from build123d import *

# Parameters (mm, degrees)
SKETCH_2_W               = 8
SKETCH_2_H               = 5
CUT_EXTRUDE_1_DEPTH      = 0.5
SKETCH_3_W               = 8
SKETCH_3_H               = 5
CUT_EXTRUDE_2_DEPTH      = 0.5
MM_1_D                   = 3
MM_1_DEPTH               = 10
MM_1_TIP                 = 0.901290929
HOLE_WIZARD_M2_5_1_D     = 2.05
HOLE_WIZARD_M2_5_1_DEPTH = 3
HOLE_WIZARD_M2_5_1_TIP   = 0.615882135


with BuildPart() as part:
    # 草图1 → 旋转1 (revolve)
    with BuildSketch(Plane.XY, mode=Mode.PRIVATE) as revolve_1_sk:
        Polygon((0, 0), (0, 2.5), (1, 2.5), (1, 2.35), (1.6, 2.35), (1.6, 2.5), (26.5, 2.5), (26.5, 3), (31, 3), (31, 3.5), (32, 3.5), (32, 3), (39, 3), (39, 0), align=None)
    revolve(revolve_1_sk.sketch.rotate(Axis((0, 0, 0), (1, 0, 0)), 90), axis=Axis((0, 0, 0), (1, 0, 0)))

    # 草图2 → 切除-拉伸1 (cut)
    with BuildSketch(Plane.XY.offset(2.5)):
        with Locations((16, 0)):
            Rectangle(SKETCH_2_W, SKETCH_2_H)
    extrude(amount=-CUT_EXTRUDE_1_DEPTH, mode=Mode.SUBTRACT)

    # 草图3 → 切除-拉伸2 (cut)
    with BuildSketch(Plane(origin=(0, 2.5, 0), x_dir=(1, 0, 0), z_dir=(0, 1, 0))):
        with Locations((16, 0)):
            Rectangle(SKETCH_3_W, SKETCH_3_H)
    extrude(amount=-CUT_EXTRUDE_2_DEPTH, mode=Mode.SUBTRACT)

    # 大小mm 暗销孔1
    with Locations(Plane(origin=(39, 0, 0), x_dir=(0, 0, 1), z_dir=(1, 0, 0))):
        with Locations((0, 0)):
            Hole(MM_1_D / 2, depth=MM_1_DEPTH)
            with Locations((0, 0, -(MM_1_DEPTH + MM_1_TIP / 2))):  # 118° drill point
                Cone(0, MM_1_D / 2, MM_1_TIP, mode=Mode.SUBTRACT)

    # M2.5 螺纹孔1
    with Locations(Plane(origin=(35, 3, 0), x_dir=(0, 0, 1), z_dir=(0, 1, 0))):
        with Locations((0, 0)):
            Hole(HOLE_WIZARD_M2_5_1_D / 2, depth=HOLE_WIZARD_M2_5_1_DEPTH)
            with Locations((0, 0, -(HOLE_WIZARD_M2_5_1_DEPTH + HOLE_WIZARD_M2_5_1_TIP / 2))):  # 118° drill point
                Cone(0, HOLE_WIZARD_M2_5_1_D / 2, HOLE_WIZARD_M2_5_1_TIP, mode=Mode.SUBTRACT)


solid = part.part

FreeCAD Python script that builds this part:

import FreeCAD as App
import Part
import Sketcher
from FreeCAD import Vector


def add_polygon(sketch, points):
    """Adds a closed chain of lines whose ends are joined by coincident constraints."""
    first, n = sketch.GeometryCount, len(points)
    for a, b in zip(points, points[1:] + points[:1]):
        sketch.addGeometry(Part.LineSegment(App.Vector(*a, 0), App.Vector(*b, 0)), False)
    for i in range(n):
        sketch.addConstraint(Sketcher.Constraint("Coincident", first + i, 2, first + (i + 1) % n, 1))

doc = App.newDocument("Part")
params = doc.addObject("Spreadsheet::Sheet", "Params")
for row, (alias, value) in enumerate([
    ("sketch1_width", "39 mm"),
    ("sketch1_width2", "7 mm"),
    ("sketch1_width3", "1 mm"),
    ("sketch1_height", "3 mm"),
    ("sketch1_width4", "4.5 mm"),
    ("revolution_angle", "360 deg"),
    ("sketch2_width", "8 mm"),
    ("sketch2_height", "5 mm"),
    ("pocket1_length", "0.5 mm"),
    ("sketch3_width", "8 mm"),
    ("sketch3_height", "5 mm"),
    ("pocket2_length", "0.5 mm"),
    ("sketch4_diameter", "3 mm"),
    ("hole_diameter", "3 mm"),
    ("hole_depth", "10 mm"),
    ("sketch5_diameter", "2.05 mm"),
    ("hole2_diameter", "2.05 mm"),
    ("hole2_depth", "3 mm"),
], start=1):
    params.set(f"A{row}", alias)
    params.set(f"B{row}", "=" + value)
    params.setAlias(f"B{row}", alias)

body = doc.addObject("PartDesign::Body", "Body")

# Sketch on XY plane
sketch1 = body.newObject("Sketcher::SketchObject", "Sketch")
sketch1.AttachmentSupport = (doc.getObject("XY_Plane"), [""])
sketch1.MapMode = "FlatFace"
add_polygon(sketch1, [(0, 2.5), (0, 0), (39, 0), (39, 3), (32, 3), (32, 3.5), (31, 3.5), (31, 3), (26.5, 3), (26.5, 2.5), (1.6, 2.5), (1.6, 2.35), (1, 2.35), (1, 2.5)])  # lines 0-13
sketch1.addConstraint(Sketcher.Constraint("Vertical", 0))
sketch1.addConstraint(Sketcher.Constraint("Horizontal", 1))
sketch1.addConstraint(Sketcher.Constraint("Vertical", 2))
sketch1.addConstraint(Sketcher.Constraint("Horizontal", 3))
sketch1.addConstraint(Sketcher.Constraint("Vertical", 4))
sketch1.addConstraint(Sketcher.Constraint("Horizontal", 5))
sketch1.addConstraint(Sketcher.Constraint("Vertical", 6))
sketch1.addConstraint(Sketcher.Constraint("Horizontal", 7))
sketch1.addConstraint(Sketcher.Constraint("Vertical", 8))
sketch1.addConstraint(Sketcher.Constraint("Horizontal", 9))
sketch1.addConstraint(Sketcher.Constraint("Vertical", 10))
sketch1.addConstraint(Sketcher.Constraint("Horizontal", 11))
sketch1.addConstraint(Sketcher.Constraint("Vertical", 12))
sketch1.addConstraint(Sketcher.Constraint("Horizontal", 13))
sketch1.addConstraint(Sketcher.Constraint("Coincident", 0, 2, -1, 1))
sketch1.addConstraint(Sketcher.Constraint("Horizontal", 3, 2, 6, 2))
sketch1.addConstraint(Sketcher.Constraint("Horizontal", 9, 2, 12, 2))
sketch1.addConstraint(Sketcher.Constraint("Equal", 5, 13))
sketch1.addConstraint(Sketcher.Constraint("Equal", 6, 8))
sketch1.addConstraint(Sketcher.Constraint("DistanceX", 1, 1, 1, 2, 39.0))
sketch1.addConstraint(Sketcher.Constraint("DistanceX", 3, 2, 3, 1, 7.0))
sketch1.addConstraint(Sketcher.Constraint("DistanceX", 5, 2, 5, 1, 1.0))
sketch1.addConstraint(Sketcher.Constraint("DistanceY", 2, 1, 2, 2, 3.0))
sketch1.addConstraint(Sketcher.Constraint("DistanceX", 7, 2, 7, 1, 4.5))
sketch1.addConstraint(Sketcher.Constraint("DistanceX", 9, 2, 9, 1, 24.9))
sketch1.addConstraint(Sketcher.Constraint("DistanceY", 0, 2, 0, 1, 2.5))
sketch1.addConstraint(Sketcher.Constraint("DistanceY", 10, 2, 10, 1, 0.15))
sketch1.setExpression("Constraints[33]", "Params.sketch1_width")
sketch1.setExpression("Constraints[34]", "Params.sketch1_width2")
sketch1.setExpression("Constraints[35]", "Params.sketch1_width3")
sketch1.setExpression("Constraints[36]", "Params.sketch1_height")
sketch1.setExpression("Constraints[37]", "Params.sketch1_width4")
revolution = body.newObject("PartDesign::Revolution", "Revolution")
revolution.Profile = sketch1
revolution.ReferenceAxis = (sketch1, ["H_Axis"])
revolution.setExpression("Angle", "Params.revolution_angle")

# Sketch on XY plane
sketch2 = body.newObject("Sketcher::SketchObject", "Sketch001")
sketch2.AttachmentSupport = (doc.getObject("XY_Plane"), [""])
sketch2.MapMode = "FlatFace"
sketch2.AttachmentOffset = App.Placement(Vector(0, 0, 2.5), App.Rotation())
add_polygon(sketch2, [(12, 2), (12, -2), (20, -2), (20, 2)])  # lines 0-3
sketch2.addConstraint(Sketcher.Constraint("Vertical", 0))
sketch2.addConstraint(Sketcher.Constraint("Horizontal", 1))
sketch2.addConstraint(Sketcher.Constraint("Vertical", 2))
sketch2.addConstraint(Sketcher.Constraint("Horizontal", 3))
sketch2.addConstraint(Sketcher.Constraint("DistanceX", 1, 1, 1, 2, 8.0))
sketch2.addConstraint(Sketcher.Constraint("DistanceY", 0, 2, 0, 1, 5.0))
sketch2.addConstraint(Sketcher.Constraint("DistanceX", -1, 1, 0, 2, 12.0))
sketch2.addConstraint(Sketcher.Constraint("DistanceY", 0, 2, -1, 1, 2.5))
sketch2.setExpression("Constraints[8]", "Params.sketch2_width")
sketch2.setExpression("Constraints[9]", "Params.sketch2_height")
pocket1 = body.newObject("PartDesign::Pocket", "Pocket")
pocket1.Profile = sketch2
pocket1.setExpression("Length", "Params.pocket1_length")

# Sketch on XZ plane
sketch3 = body.newObject("Sketcher::SketchObject", "Sketch002")
sketch3.AttachmentSupport = (doc.getObject("XZ_Plane"), [""])
sketch3.MapMode = "FlatFace"
sketch3.AttachmentOffset = App.Placement(Vector(0, 0, -2.5), App.Rotation())
add_polygon(sketch3, [(12, -2), (12, 2), (20, 2), (20, -2)])  # lines 0-3
sketch3.addConstraint(Sketcher.Constraint("Vertical", 0))
sketch3.addConstraint(Sketcher.Constraint("Horizontal", 1))
sketch3.addConstraint(Sketcher.Constraint("Vertical", 2))
sketch3.addConstraint(Sketcher.Constraint("Horizontal", 3))
sketch3.addConstraint(Sketcher.Constraint("DistanceX", 1, 1, 1, 2, 8.0))
sketch3.addConstraint(Sketcher.Constraint("DistanceY", 0, 1, 0, 2, 5.0))
sketch3.addConstraint(Sketcher.Constraint("DistanceX", -1, 1, 0, 2, 12.0))
sketch3.addConstraint(Sketcher.Constraint("DistanceY", -1, 1, 0, 2, 2.5))
sketch3.setExpression("Constraints[8]", "Params.sketch3_width")
sketch3.setExpression("Constraints[9]", "Params.sketch3_height")
pocket2 = body.newObject("PartDesign::Pocket", "Pocket001")
pocket2.Profile = sketch3
pocket2.setExpression("Length", "Params.pocket2_length")
pocket2.Reversed = True

# Sketch on YZ plane
sketch4 = body.newObject("Sketcher::SketchObject", "Sketch003")
sketch4.AttachmentSupport = (doc.getObject("YZ_Plane"), [""])
sketch4.MapMode = "FlatFace"
sketch4.AttachmentOffset = App.Placement(Vector(0, 0, 39), App.Rotation())
sketch4.addGeometry(Part.Circle(Vector(0, 0, 0), Vector(0, 0, 1), 1.5), False)
sketch4.addConstraint(Sketcher.Constraint("Coincident", 0, 3, -1, 1))
sketch4.addConstraint(Sketcher.Constraint("Diameter", 0, 3.0))
sketch4.setExpression("Constraints[1]", "Params.sketch4_diameter")
doc.recompute()
hole = body.newObject("PartDesign::Hole", "Hole")
hole.Profile = sketch4
hole.ThreadType = "None"
hole.setExpression("Diameter", "Params.hole_diameter")
hole.DepthType = "Dimension"
hole.setExpression("Depth", "Params.hole_depth")
hole.DrillPoint = "Angled"
hole.DrillPointAngle = 118

# Sketch on XZ plane
sketch5 = body.newObject("Sketcher::SketchObject", "Sketch004")
sketch5.AttachmentSupport = (doc.getObject("XZ_Plane"), [""])
sketch5.MapMode = "FlatFace"
sketch5.AttachmentOffset = App.Placement(Vector(0, 0, -3), App.Rotation())
sketch5.addGeometry(Part.Circle(Vector(35, 0, 0), Vector(0, 0, 1), 1), False)
sketch5.addConstraint(Sketcher.Constraint("PointOnObject", 0, 3, -1))
sketch5.addConstraint(Sketcher.Constraint("Diameter", 0, 2.05))
sketch5.addConstraint(Sketcher.Constraint("DistanceX", -1, 1, 0, 3, 35.0))
sketch5.setExpression("Constraints[1]", "Params.sketch5_diameter")
doc.recompute()
hole2 = body.newObject("PartDesign::Hole", "Hole001")
hole2.Profile = sketch5
hole2.ThreadType = "None"
hole2.setExpression("Diameter", "Params.hole2_diameter")
hole2.DepthType = "Dimension"
hole2.setExpression("Depth", "Params.hole2_depth")
hole2.DrillPoint = "Angled"
hole2.DrillPointAngle = 118
hole2.Reversed = True

doc.recompute()
